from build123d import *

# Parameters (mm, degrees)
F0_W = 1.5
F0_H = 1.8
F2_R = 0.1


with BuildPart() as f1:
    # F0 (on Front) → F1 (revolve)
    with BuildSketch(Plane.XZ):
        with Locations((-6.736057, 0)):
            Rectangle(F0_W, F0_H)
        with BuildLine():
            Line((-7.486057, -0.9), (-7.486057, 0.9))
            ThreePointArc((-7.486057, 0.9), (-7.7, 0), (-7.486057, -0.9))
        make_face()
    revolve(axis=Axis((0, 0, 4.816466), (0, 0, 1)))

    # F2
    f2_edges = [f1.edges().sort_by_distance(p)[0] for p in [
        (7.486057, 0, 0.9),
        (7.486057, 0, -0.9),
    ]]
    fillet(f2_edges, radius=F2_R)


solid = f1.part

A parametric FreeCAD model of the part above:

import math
import FreeCAD as App
import Part
import Sketcher
Q = App.Units.Quantity


def edges_at(feature, points):
    """Names of the edges that pass closest to the given points."""
    edges = feature.Shape.Edges
    near = lambda p: min(range(len(edges)), key=lambda i: edges[i].distToShape(Part.Vertex(*p))[0])
    return sorted({f"Edge{near(p) + 1}" for p in points})

doc = App.newDocument("Part")
params = doc.addObject("Spreadsheet::Sheet", "Params")
for row, (alias, value) in enumerate([
    ("sketch1_radius", "1.999999 mm"),
    ("sketch1_width", "1.5 mm"),
    ("sketch1_height", "1.8 mm"),
    ("revolution_angle", "360 deg"),
    ("fillet_radius", "0.1 mm"),
], start=1):
    params.set(f"A{row}", alias)
    params.set(f"B{row}", "=" + value)
    params.setAlias(f"B{row}", alias)

body = doc.addObject("PartDesign::Body", "Body")

sketch1 = doc.addObject("Sketcher::SketchObject", "Sketch")
body.addObject(sketch1)
sketch1.AttachmentSupport = (doc.XZ_Plane, [""])
sketch1.MapMode = "FlatFace"
sketch1.addGeometry([
    Part.LineSegment(App.Vector(-7.5, -0.9, 0), App.Vector(-6, -0.9, 0)),
    Part.LineSegment(App.Vector(-6, -0.9, 0), App.Vector(-6, 0.9, 0)),
    Part.LineSegment(App.Vector(-6, 0.9, 0), App.Vector(-7.5, 0.9, 0)),
    Part.ArcOfCircle(Part.Circle(App.Vector(-5.7, 0, 0), App.Vector(0, 0, 1), 2), math.radians(153), math.radians(207)),
], False)
sketch1.addConstraint([
    Sketcher.Constraint("Coincident", 0, 2, 1, 1),
    Sketcher.Constraint("Coincident", 1, 2, 2, 1),
    Sketcher.Constraint("Coincident", 2, 2, 3, 1),
    Sketcher.Constraint("Coincident", 3, 2, 0, 1),
    Sketcher.Constraint("Horizontal", 0),
    Sketcher.Constraint("Vertical", 1),
    Sketcher.Constraint("Horizontal", 2),
    Sketcher.Constraint("Symmetric", 2, 2, 3, 2, -1),
    Sketcher.Constraint("Radius", 3, Q("1.999999 mm")),
    Sketcher.Constraint("DistanceX", 0, 1, 0, 2, Q("1.5 mm")),
    Sketcher.Constraint("DistanceY", 1, 1, 1, 2, Q("1.8 mm")),
    Sketcher.Constraint("DistanceX", 3, 3, -1, 1, Q("5.700001 mm")),
])
sketch1.setExpression("Constraints[8]", "Params.sketch1_radius")
sketch1.setExpression("Constraints[9]", "Params.sketch1_width")
sketch1.setExpression("Constraints[10]", "Params.sketch1_height")
revolution = doc.addObject("PartDesign::Revolution", "Revolution")
body.addObject(revolution)
revolution.Profile = sketch1
revolution.ReferenceAxis = (sketch1, ["V_Axis"])
revolution.setExpression("Angle", "Params.revolution_angle")
doc.recompute()

fillet = doc.addObject("PartDesign::Fillet", "Fillet")
body.addObject(fillet)
fillet.Base = (revolution, edges_at(revolution, [(7.486, 0, 0.9), (7.486, 0, -0.9)]))
fillet.setExpression("Radius", "Params.fillet_radius")

doc.recompute()
